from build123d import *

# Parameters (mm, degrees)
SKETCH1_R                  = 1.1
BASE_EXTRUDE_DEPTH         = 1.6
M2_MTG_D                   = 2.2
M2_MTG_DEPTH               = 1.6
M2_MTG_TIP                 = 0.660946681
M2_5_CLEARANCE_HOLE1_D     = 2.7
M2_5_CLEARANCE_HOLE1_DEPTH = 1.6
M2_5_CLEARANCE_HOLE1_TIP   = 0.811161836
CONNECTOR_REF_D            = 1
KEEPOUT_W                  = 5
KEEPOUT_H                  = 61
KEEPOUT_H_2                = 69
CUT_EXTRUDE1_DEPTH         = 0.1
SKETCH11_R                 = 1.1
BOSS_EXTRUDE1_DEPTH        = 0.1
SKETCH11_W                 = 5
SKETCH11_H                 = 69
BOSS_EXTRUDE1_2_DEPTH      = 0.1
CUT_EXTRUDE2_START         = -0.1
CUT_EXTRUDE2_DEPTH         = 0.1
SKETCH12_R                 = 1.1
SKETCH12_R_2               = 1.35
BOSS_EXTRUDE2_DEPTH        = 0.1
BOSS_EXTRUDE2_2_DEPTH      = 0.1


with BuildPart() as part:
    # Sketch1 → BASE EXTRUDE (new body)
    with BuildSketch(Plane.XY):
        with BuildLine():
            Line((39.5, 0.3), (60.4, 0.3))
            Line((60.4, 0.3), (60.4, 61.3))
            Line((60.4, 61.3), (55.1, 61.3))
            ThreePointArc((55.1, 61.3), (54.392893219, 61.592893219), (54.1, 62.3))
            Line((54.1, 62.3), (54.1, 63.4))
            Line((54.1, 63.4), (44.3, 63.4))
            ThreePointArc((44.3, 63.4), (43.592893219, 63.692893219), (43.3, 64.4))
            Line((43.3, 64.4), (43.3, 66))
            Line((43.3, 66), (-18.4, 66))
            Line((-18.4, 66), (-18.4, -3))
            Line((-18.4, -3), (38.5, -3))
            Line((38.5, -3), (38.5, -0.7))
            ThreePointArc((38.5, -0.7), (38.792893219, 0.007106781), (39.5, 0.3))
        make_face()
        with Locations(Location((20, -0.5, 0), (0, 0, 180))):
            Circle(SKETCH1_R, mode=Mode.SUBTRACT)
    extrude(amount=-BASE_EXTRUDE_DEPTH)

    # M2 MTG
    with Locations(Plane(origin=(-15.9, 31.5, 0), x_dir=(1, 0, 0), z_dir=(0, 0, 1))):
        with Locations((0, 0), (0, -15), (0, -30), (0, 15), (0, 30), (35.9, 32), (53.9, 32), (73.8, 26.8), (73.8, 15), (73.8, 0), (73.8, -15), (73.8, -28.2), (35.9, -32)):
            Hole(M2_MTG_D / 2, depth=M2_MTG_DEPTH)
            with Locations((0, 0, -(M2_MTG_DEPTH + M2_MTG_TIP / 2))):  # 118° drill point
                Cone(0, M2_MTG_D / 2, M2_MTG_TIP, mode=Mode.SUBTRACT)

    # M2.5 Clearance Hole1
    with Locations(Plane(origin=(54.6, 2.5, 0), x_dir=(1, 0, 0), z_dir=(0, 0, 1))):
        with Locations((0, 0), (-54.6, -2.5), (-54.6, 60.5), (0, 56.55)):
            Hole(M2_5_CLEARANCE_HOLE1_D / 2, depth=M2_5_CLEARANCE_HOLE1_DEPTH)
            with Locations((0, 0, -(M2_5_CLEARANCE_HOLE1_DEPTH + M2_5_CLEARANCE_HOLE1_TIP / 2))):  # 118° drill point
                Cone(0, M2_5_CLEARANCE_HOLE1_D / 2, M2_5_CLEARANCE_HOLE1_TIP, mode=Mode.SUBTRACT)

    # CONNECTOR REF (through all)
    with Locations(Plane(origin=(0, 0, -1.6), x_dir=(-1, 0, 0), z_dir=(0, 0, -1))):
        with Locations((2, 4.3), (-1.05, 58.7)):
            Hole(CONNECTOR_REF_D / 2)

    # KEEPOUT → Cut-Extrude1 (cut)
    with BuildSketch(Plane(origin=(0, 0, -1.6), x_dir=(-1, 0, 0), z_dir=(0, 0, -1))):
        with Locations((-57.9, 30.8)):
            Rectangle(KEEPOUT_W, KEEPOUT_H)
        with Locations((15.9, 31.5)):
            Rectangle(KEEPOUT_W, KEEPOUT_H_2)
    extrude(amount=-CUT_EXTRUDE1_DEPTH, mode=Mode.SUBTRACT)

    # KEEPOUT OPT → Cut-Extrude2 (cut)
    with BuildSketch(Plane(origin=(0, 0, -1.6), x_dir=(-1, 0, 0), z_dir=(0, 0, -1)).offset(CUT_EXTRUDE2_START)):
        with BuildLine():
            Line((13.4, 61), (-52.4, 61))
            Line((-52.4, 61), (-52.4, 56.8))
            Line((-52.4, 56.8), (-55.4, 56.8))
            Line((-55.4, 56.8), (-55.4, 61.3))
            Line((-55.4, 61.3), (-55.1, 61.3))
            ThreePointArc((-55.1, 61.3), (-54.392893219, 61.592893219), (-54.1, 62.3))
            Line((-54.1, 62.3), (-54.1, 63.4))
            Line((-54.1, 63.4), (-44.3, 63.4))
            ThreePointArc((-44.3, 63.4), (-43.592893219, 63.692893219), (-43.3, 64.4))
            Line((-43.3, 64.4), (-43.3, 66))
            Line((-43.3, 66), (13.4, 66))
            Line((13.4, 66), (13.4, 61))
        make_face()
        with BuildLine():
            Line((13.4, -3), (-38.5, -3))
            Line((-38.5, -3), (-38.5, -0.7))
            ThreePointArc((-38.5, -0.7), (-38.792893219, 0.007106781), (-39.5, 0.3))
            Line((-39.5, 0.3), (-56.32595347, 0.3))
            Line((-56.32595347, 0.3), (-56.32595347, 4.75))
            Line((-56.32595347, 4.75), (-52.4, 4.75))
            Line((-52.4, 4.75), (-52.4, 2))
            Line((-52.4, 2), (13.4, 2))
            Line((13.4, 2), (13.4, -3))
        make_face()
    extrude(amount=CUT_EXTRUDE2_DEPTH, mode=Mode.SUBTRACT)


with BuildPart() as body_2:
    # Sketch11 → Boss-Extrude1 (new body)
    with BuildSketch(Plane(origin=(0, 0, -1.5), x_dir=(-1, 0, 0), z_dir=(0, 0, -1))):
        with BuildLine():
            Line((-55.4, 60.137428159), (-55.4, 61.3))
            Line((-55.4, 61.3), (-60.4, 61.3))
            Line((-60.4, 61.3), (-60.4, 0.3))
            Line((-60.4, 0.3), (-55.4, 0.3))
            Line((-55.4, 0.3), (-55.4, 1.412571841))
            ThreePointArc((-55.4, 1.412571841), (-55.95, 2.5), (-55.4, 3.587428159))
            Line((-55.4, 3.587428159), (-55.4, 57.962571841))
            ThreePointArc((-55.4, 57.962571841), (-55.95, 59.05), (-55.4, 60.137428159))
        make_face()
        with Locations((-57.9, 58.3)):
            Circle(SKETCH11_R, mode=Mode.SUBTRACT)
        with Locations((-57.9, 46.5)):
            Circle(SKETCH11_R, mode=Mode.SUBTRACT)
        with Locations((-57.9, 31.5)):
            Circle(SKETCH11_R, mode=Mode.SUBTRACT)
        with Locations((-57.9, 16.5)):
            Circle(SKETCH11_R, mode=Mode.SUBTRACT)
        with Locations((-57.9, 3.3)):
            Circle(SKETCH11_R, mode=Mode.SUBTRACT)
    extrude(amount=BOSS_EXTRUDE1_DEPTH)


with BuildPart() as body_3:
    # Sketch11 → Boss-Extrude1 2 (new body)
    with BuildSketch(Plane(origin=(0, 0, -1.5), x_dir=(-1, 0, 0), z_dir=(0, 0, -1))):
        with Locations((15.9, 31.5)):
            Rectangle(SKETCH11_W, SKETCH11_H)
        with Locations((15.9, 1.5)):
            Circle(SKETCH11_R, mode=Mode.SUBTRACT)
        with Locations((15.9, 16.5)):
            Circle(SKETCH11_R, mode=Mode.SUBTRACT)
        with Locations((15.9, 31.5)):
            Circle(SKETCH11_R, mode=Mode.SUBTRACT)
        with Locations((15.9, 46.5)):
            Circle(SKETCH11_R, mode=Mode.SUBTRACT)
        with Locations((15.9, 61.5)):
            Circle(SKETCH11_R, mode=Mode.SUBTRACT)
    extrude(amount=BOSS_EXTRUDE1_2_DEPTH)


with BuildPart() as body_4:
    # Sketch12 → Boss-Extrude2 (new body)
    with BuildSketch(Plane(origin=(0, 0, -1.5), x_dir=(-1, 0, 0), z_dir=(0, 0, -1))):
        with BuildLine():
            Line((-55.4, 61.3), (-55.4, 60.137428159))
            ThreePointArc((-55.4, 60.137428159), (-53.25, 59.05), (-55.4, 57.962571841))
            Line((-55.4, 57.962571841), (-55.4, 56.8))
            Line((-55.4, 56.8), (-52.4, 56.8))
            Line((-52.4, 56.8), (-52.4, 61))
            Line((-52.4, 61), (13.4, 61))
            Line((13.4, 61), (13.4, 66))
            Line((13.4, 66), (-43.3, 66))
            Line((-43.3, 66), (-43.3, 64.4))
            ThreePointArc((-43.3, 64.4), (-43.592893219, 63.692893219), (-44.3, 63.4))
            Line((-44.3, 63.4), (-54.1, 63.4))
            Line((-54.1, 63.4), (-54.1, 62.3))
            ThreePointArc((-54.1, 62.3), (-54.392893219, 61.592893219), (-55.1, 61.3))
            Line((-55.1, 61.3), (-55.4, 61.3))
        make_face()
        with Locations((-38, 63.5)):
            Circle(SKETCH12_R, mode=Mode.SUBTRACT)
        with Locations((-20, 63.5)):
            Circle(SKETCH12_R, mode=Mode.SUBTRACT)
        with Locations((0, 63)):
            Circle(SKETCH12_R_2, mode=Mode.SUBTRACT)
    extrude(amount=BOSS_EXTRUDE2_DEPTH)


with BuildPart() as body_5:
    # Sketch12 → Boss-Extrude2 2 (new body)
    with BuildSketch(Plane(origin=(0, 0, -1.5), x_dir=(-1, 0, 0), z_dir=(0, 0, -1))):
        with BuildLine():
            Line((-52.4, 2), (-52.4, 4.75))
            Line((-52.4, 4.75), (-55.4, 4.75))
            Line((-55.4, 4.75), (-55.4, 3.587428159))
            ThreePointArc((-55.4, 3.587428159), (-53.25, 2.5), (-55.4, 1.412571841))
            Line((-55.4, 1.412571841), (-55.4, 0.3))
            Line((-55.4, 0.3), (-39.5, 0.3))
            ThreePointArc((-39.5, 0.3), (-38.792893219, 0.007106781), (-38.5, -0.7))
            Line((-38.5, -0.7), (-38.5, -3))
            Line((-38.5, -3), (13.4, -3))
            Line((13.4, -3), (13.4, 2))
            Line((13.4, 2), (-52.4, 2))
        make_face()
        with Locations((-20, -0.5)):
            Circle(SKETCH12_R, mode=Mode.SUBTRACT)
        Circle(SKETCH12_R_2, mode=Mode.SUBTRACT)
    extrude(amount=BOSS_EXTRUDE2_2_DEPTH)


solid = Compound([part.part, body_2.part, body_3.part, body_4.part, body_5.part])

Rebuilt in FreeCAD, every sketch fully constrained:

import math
import FreeCAD as App
import Part
import Sketcher
from FreeCAD import Vector

doc = App.newDocument("Part")
body = doc.addObject("PartDesign::Body", "Body")

# Sketch on XY plane
sketch1 = body.newObject("Sketcher::SketchObject", "Sketch")
sketch1.AttachmentSupport = (doc.getObject("XY_Plane"), [""])
sketch1.MapMode = "FlatFace"
sketch1.addGeometry([
    Part.LineSegment(Vector(39.5, 0.3, 0), Vector(60.4, 0.3, 0)),  # 0
    Part.LineSegment(Vector(60.4, 0.3, 0), Vector(60.4, 61.3, 0)),  # 1
    Part.LineSegment(Vector(60.4, 61.3, 0), Vector(55.1, 61.3, 0)),  # 2
    Part.ArcOfCircle(Part.Circle(Vector(55.1, 62.3, 0), Vector(0, 0, 1), 1), math.radians(-180), math.radians(-90)),  # 3
    Part.LineSegment(Vector(54.1, 62.3, 0), Vector(54.1, 63.4, 0)),  # 4
    Part.LineSegment(Vector(54.1, 63.4, 0), Vector(44.3, 63.4, 0)),  # 5
    Part.ArcOfCircle(Part.Circle(Vector(44.3, 64.4, 0), Vector(0, 0, 1), 1), math.radians(-180), math.radians(-90)),  # 6
    Part.LineSegment(Vector(43.3, 64.4, 0), Vector(43.3, 66, 0)),  # 7
    Part.LineSegment(Vector(43.3, 66, 0), Vector(-18.4, 66, 0)),  # 8
    Part.LineSegment(Vector(-18.4, 66, 0), Vector(-18.4, -3, 0)),  # 9
    Part.LineSegment(Vector(-18.4, -3, 0), Vector(38.5, -3, 0)),  # 10
    Part.LineSegment(Vector(38.5, -3, 0), Vector(38.5, -0.7, 0)),  # 11
    Part.ArcOfCircle(Part.Circle(Vector(39.5, -0.7, 0), Vector(0, 0, 1), 1), math.radians(90), math.radians(180)),  # 12
    Part.Circle(Vector(20, -0.5, 0), Vector(0, 0, 1), 1.1),  # 13
], False)
sketch1.addConstraint([
    Sketcher.Constraint("Coincident", 0, 2, 1, 1),
    Sketcher.Constraint("Coincident", 1, 2, 2, 1),
    Sketcher.Constraint("Tangent", 2, 2, 3, 2),
    Sketcher.Constraint("Tangent", 3, 1, 4, 1),
    Sketcher.Constraint("Coincident", 4, 2, 5, 1),
    Sketcher.Constraint("Tangent", 5, 2, 6, 2),
    Sketcher.Constraint("Tangent", 6, 1, 7, 1),
    Sketcher.Constraint("Coincident", 7, 2, 8, 1),
    Sketcher.Constraint("Coincident", 8, 2, 9, 1),
    Sketcher.Constraint("Coincident", 9, 2, 10, 1),
    Sketcher.Constraint("Coincident", 10, 2, 11, 1),
    Sketcher.Constraint("Tangent", 11, 2, 12, 2),
    Sketcher.Constraint("Tangent", 12, 1, 0, 1),
    Sketcher.Constraint("Horizontal", 0),
    Sketcher.Constraint("Vertical", 1),
    Sketcher.Constraint("Horizontal", 2),
    Sketcher.Constraint("Vertical", 4),
    Sketcher.Constraint("Horizontal", 5),
    Sketcher.Constraint("Vertical", 7),
    Sketcher.Constraint("Horizontal", 8),
    Sketcher.Constraint("Vertical", 9),
    Sketcher.Constraint("Horizontal", 10),
    Sketcher.Constraint("Vertical", 11),
    Sketcher.Constraint("Equal", 3, 6),
    Sketcher.Constraint("Equal", 6, 12),
    Sketcher.Constraint("Radius", 3, 1.0),
    Sketcher.Constraint("Diameter", 13, 2.2),
    Sketcher.Constraint("DistanceY", 1, 1, 1, 2, 61.0),
    Sketcher.Constraint("DistanceY", 9, 2, 9, 1, 69.0),
    Sketcher.Constraint("DistanceX", 0, 1, 0, 2, 20.9),
    Sketcher.Constraint("DistanceX", 2, 2, 2, 1, 5.3),
    Sketcher.Constraint("DistanceX", 5, 2, 5, 1, 9.8),
    Sketcher.Constraint("DistanceX", 8, 2, 8, 1, 61.7),
    Sketcher.Constraint("DistanceY", 4, 1, 4, 2, 1.1),
    Sketcher.Constraint("DistanceY", 7, 1, 7, 2, 1.6),
    Sketcher.Constraint("DistanceX", -1, 1, 13, 3, 20.0),
    Sketcher.Constraint("DistanceY", -1, 1, 7, 2, 66.0),
    Sketcher.Constraint("DistanceX", -1, 1, 3, 3, 55.1),
    Sketcher.Constraint("DistanceY", 13, 3, -1, 1, 0.5),
])
pad1 = body.newObject("PartDesign::Pad", "Pad")
pad1.Profile = sketch1
pad1.Length = 1.6
pad1.Reversed = True

# Sketch on XY plane
sketch2 = body.newObject("Sketcher::SketchObject", "Sketch001")
sketch2.AttachmentSupport = (doc.getObject("XY_Plane"), [""])
sketch2.MapMode = "FlatFace"
sketch2.addGeometry([
    Part.Circle(Vector(-15.9, 31.5, 0), Vector(0, 0, 1), 1.1),  # 0
    Part.Circle(Vector(-15.9, 16.5, 0), Vector(0, 0, 1), 1.1),  # 1
    Part.Circle(Vector(-15.9, 1.5, 0), Vector(0, 0, 1), 1.1),  # 2
    Part.Circle(Vector(-15.9, 46.5, 0), Vector(0, 0, 1), 1.1),  # 3
    Part.Circle(Vector(-15.9, 61.5, 0), Vector(0, 0, 1), 1.1),  # 4
    Part.Circle(Vector(20, 63.5, 0), Vector(0, 0, 1), 1.1),  # 5
    Part.Circle(Vector(38, 63.5, 0), Vector(0, 0, 1), 1.1),  # 6
    Part.Circle(Vector(57.9, 58.3, 0), Vector(0, 0, 1), 1.1),  # 7
    Part.Circle(Vector(57.9, 46.5, 0), Vector(0, 0, 1), 1.1),  # 8
    Part.Circle(Vector(57.9, 31.5, 0), Vector(0, 0, 1), 1.1),  # 9
    Part.Circle(Vector(57.9, 16.5, 0), Vector(0, 0, 1), 1.1),  # 10
    Part.Circle(Vector(57.9, 3.3, 0), Vector(0, 0, 1), 1.1),  # 11
    Part.Circle(Vector(20, -0.5, 0), Vector(0, 0, 1), 1.1),  # 12
], False)
sketch2.addConstraint([
    Sketcher.Constraint("Equal", 0, 1),
    Sketcher.Constraint("Equal", 1, 2),
    Sketcher.Constraint("Equal", 2, 3),
    Sketcher.Constraint("Equal", 3, 4),
    Sketcher.Constraint("Equal", 4, 5),
    Sketcher.Constraint("Equal", 5, 6),
    Sketcher.Constraint("Equal", 6, 7),
    Sketcher.Constraint("Equal", 7, 8),
    Sketcher.Constraint("Equal", 8, 9),
    Sketcher.Constraint("Equal", 9, 10),
    Sketcher.Constraint("Equal", 10, 11),
    Sketcher.Constraint("Equal", 11, 12),
    Sketcher.Constraint("Horizontal", 5, 3, 6, 3),
    Sketcher.Constraint("Horizontal", 3, 3, 8, 3),
    Sketcher.Constraint("Horizontal", 0, 3, 9, 3),
    Sketcher.Constraint("Horizontal", 1, 3, 10, 3),
    Sketcher.Constraint("Vertical", 0, 3, 1, 3),
    Sketcher.Constraint("Vertical", 1, 3, 2, 3),
    Sketcher.Constraint("Vertical", 2, 3, 3, 3),
    Sketcher.Constraint("Vertical", 3, 3, 4, 3),
    Sketcher.Constraint("Vertical", 7, 3, 8, 3),
    Sketcher.Constraint("Vertical", 8, 3, 9, 3),
    Sketcher.Constraint("Vertical", 9, 3, 10, 3),
    Sketcher.Constraint("Vertical", 10, 3, 11, 3),
    Sketcher.Constraint("Vertical", 5, 3, 12, 3),
    Sketcher.Constraint("Diameter", 0, 2.2),
    Sketcher.Constraint("DistanceX", -1, 1, 5, 3, 20.0),
    Sketcher.Constraint("DistanceX", -1, 1, 6, 3, 38.0),
    Sketcher.Constraint("DistanceY", 1, 3, 0, 3, 15.0),
    Sketcher.Constraint("DistanceY", 2, 3, 1, 3, 15.0),
    Sketcher.Constraint("DistanceY", 0, 3, 3, 3, 15.0),
    Sketcher.Constraint("DistanceY", 3, 3, 4, 3, 15.0),
    Sketcher.Constraint("DistanceY", 4, 3, 5, 3, 2.0),
    Sketcher.Constraint("DistanceY", 11, 3, 7, 3, 55.0),
    Sketcher.Constraint("DistanceY", 12, 3, 2, 3, 2.0),
    Sketcher.Constraint("DistanceX", 0, 3, -1, 1, 15.9),
    Sketcher.Constraint("DistanceY", -1, 1, 0, 3, 31.5),
    Sketcher.Constraint("DistanceX", -1, 1, 7, 3, 57.9),
    Sketcher.Constraint("DistanceY", -1, 1, 7, 3, 58.3),
])
doc.recompute()
hole = body.newObject("PartDesign::Hole", "Hole")
hole.Profile = sketch2
hole.ThreadType = "None"
hole.Diameter = 2.2
hole.DepthType = "Dimension"
hole.Depth = 1.6
hole.DrillPoint = "Angled"
hole.DrillPointAngle = 118

# Sketch on XY plane
sketch3 = body.newObject("Sketcher::SketchObject", "Sketch002")
sketch3.AttachmentSupport = (doc.getObject("XY_Plane"), [""])
sketch3.MapMode = "FlatFace"
sketch3.addGeometry([
    Part.Circle(Vector(54.6, 2.5, 0), Vector(0, 0, 1), 1.35),
    Part.Circle(Vector(0, 0, 0), Vector(0, 0, 1), 1.35),
    Part.Circle(Vector(0, 63, 0), Vector(0, 0, 1), 1.35),
    Part.Circle(Vector(54.6, 59.05, 0), Vector(0, 0, 1), 1.35),
], False)
sketch3.addConstraint([
    Sketcher.Constraint("Coincident", 1, 3, -1, 1),
    Sketcher.Constraint("Equal", 0, 1),
    Sketcher.Constraint("Equal", 1, 2),
    Sketcher.Constraint("Equal", 2, 3),
    Sketcher.Constraint("PointOnObject", 2, 3, -2),
    Sketcher.Constraint("Vertical", 0, 3, 3, 3),
    Sketcher.Constraint("Diameter", 0, 2.7),
    Sketcher.Constraint("DistanceY", -1, 1, 2, 3, 63.0),
    Sketcher.Constraint("DistanceX", -1, 1, 0, 3, 54.6),
    Sketcher.Constraint("DistanceY", -1, 1, 0, 3, 2.5),
    Sketcher.Constraint("DistanceY", -1, 1, 3, 3, 59.05),
])
doc.recompute()
hole2 = body.newObject("PartDesign::Hole", "Hole001")
hole2.Profile = sketch3
hole2.ThreadType = "None"
hole2.Diameter = 2.7
hole2.DepthType = "Dimension"
hole2.Depth = 1.6
hole2.DrillPoint = "Angled"
hole2.DrillPointAngle = 118

# Sketch on XY plane
sketch4 = body.newObject("Sketcher::SketchObject", "Sketch003")
sketch4.AttachmentSupport = (doc.getObject("XY_Plane"), [""])
sketch4.MapMode = "FlatFace"
sketch4.AttachmentOffset = App.Placement(Vector(0, 0, -1.6), App.Rotation())
sketch4.addGeometry([
    Part.Circle(Vector(-2, 4.3, 0), Vector(0, 0, 1), 0.5),
    Part.Circle(Vector(1.05, 58.7, 0), Vector(0, 0, 1), 0.5),
], False)
sketch4.addConstraint([
    Sketcher.Constraint("Equal", 0, 1),
    Sketcher.Constraint("Diameter", 0, 1.0),
    Sketcher.Constraint("DistanceX", 0, 3, -1, 1, 2.0),
    Sketcher.Constraint("DistanceY", -1, 1, 0, 3, 4.3),
    Sketcher.Constraint("DistanceY", -1, 1, 1, 3, 58.7),
    Sketcher.Constraint("DistanceX", -1, 1, 1, 3, 1.05),
])
doc.recompute()
hole3 = body.newObject("PartDesign::Hole", "Hole002")
hole3.Profile = sketch4
hole3.ThreadType = "None"
hole3.Diameter = 1
hole3.DepthType = "ThroughAll"
hole3.Reversed = True

# Sketch on XY plane
sketch5 = body.newObject("Sketcher::SketchObject", "Sketch004")
sketch5.AttachmentSupport = (doc.getObject("XY_Plane"), [""])
sketch5.MapMode = "FlatFace"
sketch5.AttachmentOffset = App.Placement(Vector(0, 0, -1.6), App.Rotation())
sketch5.addGeometry([
    Part.LineSegment(Vector(60.4, 61.3, 0), Vector(60.4, 0.3, 0)),  # 0
    Part.LineSegment(Vector(60.4, 0.3, 0), Vector(55.4, 0.3, 0)),  # 1
    Part.LineSegment(Vector(55.4, 0.3, 0), Vector(55.4, 61.3, 0)),  # 2
    Part.LineSegment(Vector(55.4, 61.3, 0), Vector(60.4, 61.3, 0)),  # 3
    Part.LineSegment(Vector(-13.4, 66, 0), Vector(-13.4, -3, 0)),  # 4
    Part.LineSegment(Vector(-13.4, -3, 0), Vector(-18.4, -3, 0)),  # 5
    Part.LineSegment(Vector(-18.4, -3, 0), Vector(-18.4, 66, 0)),  # 6
    Part.LineSegment(Vector(-18.4, 66, 0), Vector(-13.4, 66, 0)),  # 7
], False)
sketch5.addConstraint([
    Sketcher.Constraint("Coincident", 0, 2, 1, 1),
    Sketcher.Constraint("Coincident", 1, 2, 2, 1),
    Sketcher.Constraint("Coincident", 2, 2, 3, 1),
    Sketcher.Constraint("Coincident", 3, 2, 0, 1),
    Sketcher.Constraint("Coincident", 4, 2, 5, 1),
    Sketcher.Constraint("Coincident", 5, 2, 6, 1),
    Sketcher.Constraint("Coincident", 6, 2, 7, 1),
    Sketcher.Constraint("Coincident", 7, 2, 4, 1),
    Sketcher.Constraint("Vertical", 0),
    Sketcher.Constraint("Horizontal", 1),
    Sketcher.Constraint("Vertical", 2),
    Sketcher.Constraint("Horizontal", 3),
    Sketcher.Constraint("Vertical", 4),
    Sketcher.Constraint("Horizontal", 5),
    Sketcher.Constraint("Vertical", 6),
    Sketcher.Constraint("Horizontal", 7),
    Sketcher.Constraint("Equal", 3, 5),
    Sketcher.Constraint("DistanceX", 1, 2, 1, 1, 5.0),
    Sketcher.Constraint("DistanceY", 0, 2, 0, 1, 61.0),
    Sketcher.Constraint("DistanceY", 4, 2, 4, 1, 69.0),
    Sketcher.Constraint("DistanceY", 4, 2, -1, 1, 3.0),
    Sketcher.Constraint("DistanceX", -1, 1, 0, 2, 60.4),
    Sketcher.Constraint("DistanceY", -1, 1, 0, 2, 0.3),
    Sketcher.Constraint("DistanceX", 4, 2, -1, 1, 13.4),
])
pocket1 = body.newObject("PartDesign::Pocket", "Pocket")
pocket1.Profile = sketch5
pocket1.Length = 0.1
pocket1.Reversed = True

# Sketch on XY plane
sketch6 = body.newObject("Sketcher::SketchObject", "Sketch005")
sketch6.AttachmentSupport = (doc.getObject("XY_Plane"), [""])
sketch6.MapMode = "FlatFace"
sketch6.AttachmentOffset = App.Placement(Vector(0, 0, -1.5), App.Rotation())
sketch6.addGeometry([
    Part.LineSegment(Vector(52.4, 61, 0), Vector(-13.4, 61, 0)),  # 0
    Part.LineSegment(Vector(-13.4, 61, 0), Vector(-13.4, 66, 0)),  # 1
    Part.LineSegment(Vector(-13.4, 66, 0), Vector(43.3, 66, 0)),  # 2
    Part.LineSegment(Vector(43.3, 66, 0), Vector(43.3, 64.4, 0)),  # 3
    Part.ArcOfCircle(Part.Circle(Vector(44.3, 64.4, 0), Vector(0, 0, 1), 1), math.radians(-180), math.radians(-90)),  # 4
    Part.LineSegment(Vector(44.3, 63.4, 0), Vector(54.1, 63.4, 0)),  # 5
    Part.LineSegment(Vector(54.1, 63.4, 0), Vector(54.1, 62.3, 0)),  # 6
    Part.ArcOfCircle(Part.Circle(Vector(55.1, 62.3, 0), Vector(0, 0, 1), 1), math.radians(-180), math.radians(-90)),  # 7
    Part.LineSegment(Vector(55.1, 61.3, 0), Vector(55.4, 61.3, 0)),  # 8
    Part.LineSegment(Vector(55.4, 61.3, 0), Vector(55.4, 56.8, 0)),  # 9
    Part.LineSegment(Vector(55.4, 56.8, 0), Vector(52.4, 56.8, 0)),  # 10
    Part.LineSegment(Vector(52.4, 56.8, 0), Vector(52.4, 61, 0)),  # 11
    Part.LineSegment(Vector(38.5, -3, 0), Vector(-13.4, -3, 0)),  # 12
    Part.LineSegment(Vector(-13.4, -3, 0), Vector(-13.4, 2, 0)),  # 13
    Part.LineSegment(Vector(-13.4, 2, 0), Vector(52.4, 2, 0)),  # 14
    Part.LineSegment(Vector(52.4, 2, 0), Vector(52.4, 4.75, 0)),  # 15
    Part.LineSegment(Vector(52.4, 4.75, 0), Vector(56.325953, 4.75, 0)),  # 16
    Part.LineSegment(Vector(56.325953, 4.75, 0), Vector(56.325953, 0.3, 0)),  # 17
    Part.LineSegment(Vector(56.325953, 0.3, 0), Vector(39.5, 0.3, 0)),  # 18
    Part.ArcOfCircle(Part.Circle(Vector(39.5, -0.7, 0), Vector(0, 0, 1), 1), math.radians(90), math.radians(180)),  # 19
    Part.LineSegment(Vector(38.5, -0.7, 0), Vector(38.5, -3, 0)),  # 20
], False)
sketch6.addConstraint([
    Sketcher.Constraint("Coincident", 0, 2, 1, 1),
    Sketcher.Constraint("Coincident", 1, 2, 2, 1),
    Sketcher.Constraint("Coincident", 2, 2, 3, 1),
    Sketcher.Constraint("Tangent", 3, 2, 4, 1),
    Sketcher.Constraint("Tangent", 4, 2, 5, 1),
    Sketcher.Constraint("Coincident", 5, 2, 6, 1),
    Sketcher.Constraint("Tangent", 6, 2, 7, 1),
    Sketcher.Constraint("Tangent", 7, 2, 8, 1),
    Sketcher.Constraint("Coincident", 8, 2, 9, 1),
    Sketcher.Constraint("Coincident", 9, 2, 10, 1),
    Sketcher.Constraint("Coincident", 10, 2, 11, 1),
    Sketcher.Constraint("Coincident", 11, 2, 0, 1),
    Sketcher.Constraint("Coincident", 12, 2, 13, 1),
    Sketcher.Constraint("Coincident", 13, 2, 14, 1),
    Sketcher.Constraint("Coincident", 14, 2, 15, 1),
    Sketcher.Constraint("Coincident", 15, 2, 16, 1),
    Sketcher.Constraint("Coincident", 16, 2, 17, 1),
    Sketcher.Constraint("Coincident", 17, 2, 18, 1),
    Sketcher.Constraint("Tangent", 18, 2, 19, 1),
    Sketcher.Constraint("Tangent", 19, 2, 20, 1),
    Sketcher.Constraint("Coincident", 20, 2, 12, 1),
    Sketcher.Constraint("Horizontal", 0),
    Sketcher.Constraint("Vertical", 1),
    Sketcher.Constraint("Horizontal", 2),
    Sketcher.Constraint("Vertical", 3),
    Sketcher.Constraint("Horizontal", 5),
    Sketcher.Constraint("Vertical", 6),
    Sketcher.Constraint("Horizontal", 8),
    Sketcher.Constraint("Vertical", 9),
    Sketcher.Constraint("Horizontal", 10),
    Sketcher.Constraint("Vertical", 11),
    Sketcher.Constraint("Horizontal", 12),
    Sketcher.Constraint("Vertical", 13),
    Sketcher.Constraint("Horizontal", 14),
    Sketcher.Constraint("Vertical", 15),
    Sketcher.Constraint("Horizontal", 16),
    Sketcher.Constraint("Vertical", 17),
    Sketcher.Constraint("Horizontal", 18),
    Sketcher.Constraint("Vertical", 20),
    Sketcher.Constraint("Equal", 4, 7),
    Sketcher.Constraint("Equal", 7, 19),
    Sketcher.Constraint("Vertical", 1, 2, 12, 2),
    Sketcher.Constraint("Vertical", 11, 2, 14, 2),
    Sketcher.Constraint("Equal", 1, 13),
    Sketcher.Constraint("Radius", 4, 1.0),
    Sketcher.Constraint("DistanceX", 10, 2, 10, 1, 3.0),
    Sketcher.Constraint("DistanceY", 1, 1, 1, 2, 5.0),
    Sketcher.Constraint("DistanceX", 0, 2, 0, 1, 65.8),
    Sketcher.Constraint("DistanceX", 2, 1, 2, 2, 56.7),
    Sketcher.Constraint("DistanceX", 5, 1, 5, 2, 9.8),
    Sketcher.Constraint("DistanceX", 12, 2, 12, 1, 51.9),
    Sketcher.Constraint("DistanceY", 3, 2, 3, 1, 1.6),
    Sketcher.Constraint("DistanceY", 6, 2, 6, 1, 1.1),
    Sketcher.Constraint("DistanceY", 9, 2, 9, 1, 4.5),
    Sketcher.Constraint("DistanceY", 20, 2, 20, 1, 2.3),
    Sketcher.Constraint("DistanceY", -1, 1, 0, 2, 61.0),
    Sketcher.Constraint("DistanceY", 12, 2, -1, 1, 3.0),
    Sketcher.Constraint("DistanceY", 15, 1, 15, 2, 2.75),
    Sketcher.Constraint("DistanceX", -1, 1, 4, 3, 44.3),
    Sketcher.Constraint("DistanceX", 16, 1, 16, 2, 3.925953),
])
pocket2 = body.newObject("PartDesign::Pocket", "Pocket001")
pocket2.Profile = sketch6
pocket2.Length = 0.1
body2 = doc.addObject("PartDesign::Body", "Body001")

# Sketch on XY plane
sketch7 = body2.newObject("Sketcher::SketchObject", "Sketch006")
sketch7.AttachmentSupport = (doc.getObject("XY_Plane001"), [""])
sketch7.MapMode = "FlatFace"
sketch7.AttachmentOffset = App.Placement(Vector(0, 0, -1.5), App.Rotation())
sketch7.addGeometry([
    Part.LineSegment(Vector(55.4, 60.137428, 0), Vector(55.4, 61.3, 0)),  # 0
    Part.LineSegment(Vector(55.4, 61.3, 0), Vector(60.4, 61.3, 0)),  # 1
    Part.LineSegment(Vector(60.4, 61.3, 0), Vector(60.4, 0.3, 0)),  # 2
    Part.LineSegment(Vector(60.4, 0.3, 0), Vector(55.4, 0.3, 0)),  # 3
    Part.LineSegment(Vector(55.4, 0.3, 0), Vector(55.4, 1.412572, 0)),  # 4
    Part.ArcOfCircle(Part.Circle(Vector(54.6, 2.5, 0), Vector(0, 0, 1), 1.35), math.radians(-53.658797), math.radians(53.658797)),  # 5
    Part.LineSegment(Vector(55.4, 3.587428, 0), Vector(55.4, 57.962572, 0)),  # 6
    Part.ArcOfCircle(Part.Circle(Vector(54.6, 59.05, 0), Vector(0, 0, 1), 1.35), math.radians(-53.658797), math.radians(53.658797)),  # 7
    Part.Circle(Vector(57.9, 3.3, 0), Vector(0, 0, 1), 1.1),  # 8
    Part.Circle(Vector(57.9, 16.5, 0), Vector(0, 0, 1), 1.1),  # 9
    Part.Circle(Vector(57.9, 31.5, 0), Vector(0, 0, 1), 1.1),  # 10
    Part.Circle(Vector(57.9, 46.5, 0), Vector(0, 0, 1), 1.1),  # 11
    Part.Circle(Vector(57.9, 58.3, 0), Vector(0, 0, 1), 1.1),  # 12
], False)
sketch7.addConstraint([
    Sketcher.Constraint("Coincident", 0, 2, 1, 1),
    Sketcher.Constraint("Coincident", 1, 2, 2, 1),
    Sketcher.Constraint("Coincident", 2, 2, 3, 1),
    Sketcher.Constraint("Coincident", 3, 2, 4, 1),
    Sketcher.Constraint("Coincident", 4, 2, 5, 1),
    Sketcher.Constraint("Coincident", 5, 2, 6, 1),
    Sketcher.Constraint("Coincident", 6, 2, 7, 1),
    Sketcher.Constraint("Coincident", 7, 2, 0, 1),
    Sketcher.Constraint("Vertical", 0),
    Sketcher.Constraint("Horizontal", 1),
    Sketcher.Constraint("Vertical", 2),
    Sketcher.Constraint("Horizontal", 3),
    Sketcher.Constraint("Vertical", 4),
    Sketcher.Constraint("Vertical", 6),
    Sketcher.Constraint("Equal", 5, 7),
    Sketcher.Constraint("Equal", 8, 9),
    Sketcher.Constraint("Equal", 9, 10),
    Sketcher.Constraint("Equal", 10, 11),
    Sketcher.Constraint("Equal", 11, 12),
    Sketcher.Constraint("Vertical", 5, 3, 7, 3),
    Sketcher.Constraint("Vertical", 8, 3, 9, 3),
    Sketcher.Constraint("Vertical", 9, 3, 10, 3),
    Sketcher.Constraint("Vertical", 10, 3, 11, 3),
    Sketcher.Constraint("Vertical", 11, 3, 12, 3),
    Sketcher.Constraint("Vertical", 0, 2, 3, 2),
    Sketcher.Constraint("Vertical", 4, 2, 5, 2),
    Sketcher.Constraint("Diameter", 8, 2.2),
    Sketcher.Constraint("DistanceX", 1, 1, 1, 2, 5.0),
    Sketcher.Constraint("DistanceY", 2, 2, 2, 1, 61.0),
    Sketcher.Constraint("Radius", 5, 1.35),
    Sketcher.Constraint("DistanceY", 5, 3, 9, 3, 14.0),
    Sketcher.Constraint("DistanceY", 9, 3, 10, 3, 15.0),
    Sketcher.Constraint("DistanceY", 10, 3, 11, 3, 15.0),
    Sketcher.Constraint("DistanceY", 8, 3, 12, 3, 55.0),
    Sketcher.Constraint("DistanceY", 12, 3, 0, 2, 3.0),
    Sketcher.Constraint("DistanceX", -1, 1, 5, 3, 54.6),
    Sketcher.Constraint("DistanceY", -1, 1, 5, 3, 2.5),
    Sketcher.Constraint("DistanceX", -1, 1, 8, 3, 57.9),
    Sketcher.Constraint("DistanceY", -1, 1, 8, 3, 3.3),
    Sketcher.Constraint("DistanceX", -1, 1, 0, 2, 55.4),
    Sketcher.Constraint("DistanceY", -1, 1, 7, 3, 59.05),
])
pad2 = body2.newObject("PartDesign::Pad", "Pad001")
pad2.Profile = sketch7
pad2.Length = 0.1
pad2.Reversed = True
body3 = doc.addObject("PartDesign::Body", "Body002")

# Sketch on XY plane
sketch8 = body3.newObject("Sketcher::SketchObject", "Sketch007")
sketch8.AttachmentSupport = (doc.getObject("XY_Plane002"), [""])
sketch8.MapMode = "FlatFace"
sketch8.AttachmentOffset = App.Placement(Vector(0, 0, -1.5), App.Rotation())
sketch8.addGeometry([
    Part.LineSegment(Vector(-13.4, 66, 0), Vector(-13.4, -3, 0)),  # 0
    Part.LineSegment(Vector(-13.4, -3, 0), Vector(-18.4, -3, 0)),  # 1
    Part.LineSegment(Vector(-18.4, -3, 0), Vector(-18.4, 66, 0)),  # 2
    Part.LineSegment(Vector(-18.4, 66, 0), Vector(-13.4, 66, 0)),  # 3
    Part.Circle(Vector(-15.9, 1.5, 0), Vector(0, 0, 1), 1.1),  # 4
    Part.Circle(Vector(-15.9, 16.5, 0), Vector(0, 0, 1), 1.1),  # 5
    Part.Circle(Vector(-15.9, 31.5, 0), Vector(0, 0, 1), 1.1),  # 6
    Part.Circle(Vector(-15.9, 46.5, 0), Vector(0, 0, 1), 1.1),  # 7
    Part.Circle(Vector(-15.9, 61.5, 0), Vector(0, 0, 1), 1.1),  # 8
], False)
sketch8.addConstraint([
    Sketcher.Constraint("Coincident", 0, 2, 1, 1),
    Sketcher.Constraint("Coincident", 1, 2, 2, 1),
    Sketcher.Constraint("Coincident", 2, 2, 3, 1),
    Sketcher.Constraint("Coincident", 3, 2, 0, 1),
    Sketcher.Constraint("Vertical", 0),
    Sketcher.Constraint("Horizontal", 1),
    Sketcher.Constraint("Vertical", 2),
    Sketcher.Constraint("Horizontal", 3),
    Sketcher.Constraint("Equal", 4, 5),
    Sketcher.Constraint("Equal", 5, 6),
    Sketcher.Constraint("Equal", 6, 7),
    Sketcher.Constraint("Equal", 7, 8),
    Sketcher.Constraint("Vertical", 4, 3, 5, 3),
    Sketcher.Constraint("Vertical", 5, 3, 6, 3),
    Sketcher.Constraint("Vertical", 6, 3, 7, 3),
    Sketcher.Constraint("Vertical", 7, 3, 8, 3),
    Sketcher.Constraint("Diameter", 4, 2.2),
    Sketcher.Constraint("DistanceX", 1, 2, 1, 1, 5.0),
    Sketcher.Constraint("DistanceY", 0, 2, 0, 1, 69.0),
    Sketcher.Constraint("DistanceY", 0, 2, -1, 1, 3.0),
    Sketcher.Constraint("DistanceY", 4, 3, 5, 3, 15.0),
    Sketcher.Constraint("DistanceY", 5, 3, 6, 3, 15.0),
    Sketcher.Constraint("DistanceY", 6, 3, 7, 3, 15.0),
    Sketcher.Constraint("DistanceY", 7, 3, 8, 3, 15.0),
    Sketcher.Constraint("DistanceX", 4, 3, -1, 1, 15.9),
    Sketcher.Constraint("DistanceY", -1, 1, 4, 3, 1.5),
    Sketcher.Constraint("DistanceX", 0, 2, -1, 1, 13.4),
])
pad3 = body3.newObject("PartDesign::Pad", "Pad002")
pad3.Profile = sketch8
pad3.Length = 0.1
pad3.Reversed = True
body4 = doc.addObject("PartDesign::Body", "Body003")

# Sketch on XY plane
sketch9 = body4.newObject("Sketcher::SketchObject", "Sketch008")
sketch9.AttachmentSupport = (doc.getObject("XY_Plane003"), [""])
sketch9.MapMode = "FlatFace"
sketch9.AttachmentOffset = App.Placement(Vector(0, 0, -1.5), App.Rotation())
sketch9.addGeometry([
    Part.LineSegment(Vector(55.4, 61.3, 0), Vector(55.4, 60.137428, 0)),  # 0
    Part.ArcOfCircle(Part.Circle(Vector(54.6, 59.05, 0), Vector(0, 0, 1), 1.35), math.radians(53.658797), math.radians(306.341203)),  # 1
    Part.LineSegment(Vector(55.4, 57.962572, 0), Vector(55.4, 56.8, 0)),  # 2
    Part.LineSegment(Vector(55.4, 56.8, 0), Vector(52.4, 56.8, 0)),  # 3
    Part.LineSegment(Vector(52.4, 56.8, 0), Vector(52.4, 61, 0)),  # 4
    Part.LineSegment(Vector(52.4, 61, 0), Vector(-13.4, 61, 0)),  # 5
    Part.LineSegment(Vector(-13.4, 61, 0), Vector(-13.4, 66, 0)),  # 6
    Part.LineSegment(Vector(-13.4, 66, 0), Vector(43.3, 66, 0)),  # 7
    Part.LineSegment(Vector(43.3, 66, 0), Vector(43.3, 64.4, 0)),  # 8
    Part.ArcOfCircle(Part.Circle(Vector(44.3, 64.4, 0), Vector(0, 0, 1), 1), math.radians(-180), math.radians(-90)),  # 9
    Part.LineSegment(Vector(44.3, 63.4, 0), Vector(54.1, 63.4, 0)),  # 10
    Part.LineSegment(Vector(54.1, 63.4, 0), Vector(54.1, 62.3, 0)),  # 11
    Part.ArcOfCircle(Part.Circle(Vector(55.1, 62.3, 0), Vector(0, 0, 1), 1), math.radians(-180), math.radians(-90)),  # 12
    Part.LineSegment(Vector(55.1, 61.3, 0), Vector(55.4, 61.3, 0)),  # 13
    Part.Circle(Vector(0, 63, 0), Vector(0, 0, 1), 1.35),  # 14
    Part.Circle(Vector(38, 63.5, 0), Vector(0, 0, 1), 1.1),  # 15
    Part.Circle(Vector(20, 63.5, 0), Vector(0, 0, 1), 1.1),  # 16
], False)
sketch9.addConstraint([
    Sketcher.Constraint("Coincident", 0, 2, 1, 1),
    Sketcher.Constraint("Coincident", 1, 2, 2, 1),
    Sketcher.Constraint("Coincident", 2, 2, 3, 1),
    Sketcher.Constraint("Coincident", 3, 2, 4, 1),
    Sketcher.Constraint("Coincident", 4, 2, 5, 1),
    Sketcher.Constraint("Coincident", 5, 2, 6, 1),
    Sketcher.Constraint("Coincident", 6, 2, 7, 1),
    Sketcher.Constraint("Coincident", 7, 2, 8, 1),
    Sketcher.Constraint("Tangent", 8, 2, 9, 1),
    Sketcher.Constraint("Tangent", 9, 2, 10, 1),
    Sketcher.Constraint("Coincident", 10, 2, 11, 1),
    Sketcher.Constraint("Tangent", 11, 2, 12, 1),
    Sketcher.Constraint("Tangent", 12, 2, 13, 1),
    Sketcher.Constraint("Coincident", 13, 2, 0, 1),
    Sketcher.Constraint("Vertical", 0),
    Sketcher.Constraint("Vertical", 2),
    Sketcher.Constraint("Horizontal", 3),
    Sketcher.Constraint("Vertical", 4),
    Sketcher.Constraint("Horizontal", 5),
    Sketcher.Constraint("Vertical", 6),
    Sketcher.Constraint("Horizontal", 7),
    Sketcher.Constraint("Vertical", 8),
    Sketcher.Constraint("Horizontal", 10),
    Sketcher.Constraint("Vertical", 11),
    Sketcher.Constraint("Horizontal", 13),
    Sketcher.Constraint("Equal", 9, 12),
    Sketcher.Constraint("Equal", 1, 14),
    Sketcher.Constraint("Equal", 15, 16),
    Sketcher.Constraint("PointOnObject", 14, 3, -2),
    Sketcher.Constraint("Horizontal", 15, 3, 16, 3),
    Sketcher.Constraint("Vertical", 0, 2, 1, 2),
    Sketcher.Constraint("Equal", 0, 2),
    Sketcher.Constraint("Radius", 9, 1.0),
    Sketcher.Constraint("Diameter", 14, 2.7),
    Sketcher.Constraint("Diameter", 15, 2.2),
    Sketcher.Constraint("DistanceX", 3, 2, 3, 1, 3.0),
    Sketcher.Constraint("DistanceY", 6, 1, 6, 2, 5.0),
    Sketcher.Constraint("DistanceX", 5, 2, 5, 1, 65.8),
    Sketcher.Constraint("DistanceX", 7, 1, 7, 2, 56.7),
    Sketcher.Constraint("DistanceX", 10, 1, 10, 2, 9.8),
    Sketcher.Constraint("DistanceY", 4, 1, 4, 2, 4.2),
    Sketcher.Constraint("DistanceY", 8, 2, 8, 1, 1.6),
    Sketcher.Constraint("DistanceY", 11, 2, 11, 1, 1.1),
    Sketcher.Constraint("DistanceY", -1, 1, 14, 3, 63.0),
    Sketcher.Constraint("DistanceX", -1, 1, 15, 3, 38.0),
    Sketcher.Constraint("DistanceX", -1, 1, 16, 3, 20.0),
    Sketcher.Constraint("DistanceY", -1, 1, 4, 2, 61.0),
    Sketcher.Constraint("DistanceX", -1, 1, 1, 3, 54.6),
    Sketcher.Constraint("DistanceX", -1, 1, 9, 3, 44.3),
    Sketcher.Constraint("DistanceY", -1, 1, 15, 3, 63.5),
])
pad4 = body4.newObject("PartDesign::Pad", "Pad003")
pad4.Profile = sketch9
pad4.Length = 0.1
pad4.Reversed = True
body5 = doc.addObject("PartDesign::Body", "Body004")

# Sketch on XY plane
sketch10 = body5.newObject("Sketcher::SketchObject", "Sketch009")
sketch10.AttachmentSupport = (doc.getObject("XY_Plane004"), [""])
sketch10.MapMode = "FlatFace"
sketch10.AttachmentOffset = App.Placement(Vector(0, 0, -1.5), App.Rotation())
sketch10.addGeometry([
    Part.LineSegment(Vector(52.4, 2, 0), Vector(52.4, 4.75, 0)),  # 0
    Part.LineSegment(Vector(52.4, 4.75, 0), Vector(55.4, 4.75, 0)),  # 1
    Part.LineSegment(Vector(55.4, 4.75, 0), Vector(55.4, 3.587428, 0)),  # 2
    Part.ArcOfCircle(Part.Circle(Vector(54.6, 2.5, 0), Vector(0, 0, 1), 1.35), math.radians(53.658797), math.radians(306.341203)),  # 3
    Part.LineSegment(Vector(55.4, 1.412572, 0), Vector(55.4, 0.3, 0)),  # 4
    Part.LineSegment(Vector(55.4, 0.3, 0), Vector(39.5, 0.3, 0)),  # 5
    Part.ArcOfCircle(Part.Circle(Vector(39.5, -0.7, 0), Vector(0, 0, 1), 1), math.radians(90), math.radians(180)),  # 6
    Part.LineSegment(Vector(38.5, -0.7, 0), Vector(38.5, -3, 0)),  # 7
    Part.LineSegment(Vector(38.5, -3, 0), Vector(-13.4, -3, 0)),  # 8
    Part.LineSegment(Vector(-13.4, -3, 0), Vector(-13.4, 2, 0)),  # 9
    Part.LineSegment(Vector(-13.4, 2, 0), Vector(52.4, 2, 0)),  # 10
    Part.Circle(Vector(20, -0.5, 0), Vector(0, 0, 1), 1.1),  # 11
    Part.Circle(Vector(0, 0, 0), Vector(0, 0, 1), 1.35),  # 12
], False)
sketch10.addConstraint([
    Sketcher.Constraint("Coincident", 0, 2, 1, 1),
    Sketcher.Constraint("Coincident", 1, 2, 2, 1),
    Sketcher.Constraint("Coincident", 2, 2, 3, 1),
    Sketcher.Constraint("Coincident", 3, 2, 4, 1),
    Sketcher.Constraint("Coincident", 4, 2, 5, 1),
    Sketcher.Constraint("Tangent", 5, 2, 6, 1),
    Sketcher.Constraint("Tangent", 6, 2, 7, 1),
    Sketcher.Constraint("Coincident", 7, 2, 8, 1),
    Sketcher.Constraint("Coincident", 8, 2, 9, 1),
    Sketcher.Constraint("Coincident", 9, 2, 10, 1),
    Sketcher.Constraint("Coincident", 10, 2, 0, 1),
    Sketcher.Constraint("Vertical", 0),
    Sketcher.Constraint("Horizontal", 1),
    Sketcher.Constraint("Vertical", 2),
    Sketcher.Constraint("Vertical", 4),
    Sketcher.Constraint("Horizontal", 5),
    Sketcher.Constraint("Vertical", 7),
    Sketcher.Constraint("Horizontal", 8),
    Sketcher.Constraint("Vertical", 9),
    Sketcher.Constraint("Horizontal", 10),
    Sketcher.Constraint("Coincident", 12, 3, -1, 1),
    Sketcher.Constraint("Equal", 3, 12),
    Sketcher.Constraint("Vertical", 2, 2, 3, 2),
    Sketcher.Constraint("Radius", 6, 1.0),
    Sketcher.Constraint("Diameter", 11, 2.2),
    Sketcher.Constraint("Diameter", 12, 2.7),
    Sketcher.Constraint("DistanceX", 1, 1, 1, 2, 3.0),
    Sketcher.Constraint("DistanceY", 9, 1, 9, 2, 5.0),
    Sketcher.Constraint("DistanceX", 5, 2, 5, 1, 15.9),
    Sketcher.Constraint("DistanceX", 8, 2, 8, 1, 51.9),
    Sketcher.Constraint("DistanceY", 7, 2, 7, 1, 2.3),
    Sketcher.Constraint("DistanceX", -1, 1, 11, 3, 20.0),
    Sketcher.Constraint("DistanceY", 7, 2, -1, 1, 3.0),
    Sketcher.Constraint("DistanceY", 11, 3, 3, 3, 3.0),
    Sketcher.Constraint("DistanceY", 0, 1, 0, 2, 2.75),
    Sketcher.Constraint("DistanceX", -1, 1, 3, 3, 54.6),
    Sketcher.Constraint("DistanceY", -1, 1, 3, 3, 2.5),
    Sketcher.Constraint("DistanceX", -1, 1, 6, 3, 39.5),
])
pad5 = body5.newObject("PartDesign::Pad", "Pad004")
pad5.Profile = sketch10
pad5.Length = 0.1
pad5.Reversed = True

doc.recompute()
